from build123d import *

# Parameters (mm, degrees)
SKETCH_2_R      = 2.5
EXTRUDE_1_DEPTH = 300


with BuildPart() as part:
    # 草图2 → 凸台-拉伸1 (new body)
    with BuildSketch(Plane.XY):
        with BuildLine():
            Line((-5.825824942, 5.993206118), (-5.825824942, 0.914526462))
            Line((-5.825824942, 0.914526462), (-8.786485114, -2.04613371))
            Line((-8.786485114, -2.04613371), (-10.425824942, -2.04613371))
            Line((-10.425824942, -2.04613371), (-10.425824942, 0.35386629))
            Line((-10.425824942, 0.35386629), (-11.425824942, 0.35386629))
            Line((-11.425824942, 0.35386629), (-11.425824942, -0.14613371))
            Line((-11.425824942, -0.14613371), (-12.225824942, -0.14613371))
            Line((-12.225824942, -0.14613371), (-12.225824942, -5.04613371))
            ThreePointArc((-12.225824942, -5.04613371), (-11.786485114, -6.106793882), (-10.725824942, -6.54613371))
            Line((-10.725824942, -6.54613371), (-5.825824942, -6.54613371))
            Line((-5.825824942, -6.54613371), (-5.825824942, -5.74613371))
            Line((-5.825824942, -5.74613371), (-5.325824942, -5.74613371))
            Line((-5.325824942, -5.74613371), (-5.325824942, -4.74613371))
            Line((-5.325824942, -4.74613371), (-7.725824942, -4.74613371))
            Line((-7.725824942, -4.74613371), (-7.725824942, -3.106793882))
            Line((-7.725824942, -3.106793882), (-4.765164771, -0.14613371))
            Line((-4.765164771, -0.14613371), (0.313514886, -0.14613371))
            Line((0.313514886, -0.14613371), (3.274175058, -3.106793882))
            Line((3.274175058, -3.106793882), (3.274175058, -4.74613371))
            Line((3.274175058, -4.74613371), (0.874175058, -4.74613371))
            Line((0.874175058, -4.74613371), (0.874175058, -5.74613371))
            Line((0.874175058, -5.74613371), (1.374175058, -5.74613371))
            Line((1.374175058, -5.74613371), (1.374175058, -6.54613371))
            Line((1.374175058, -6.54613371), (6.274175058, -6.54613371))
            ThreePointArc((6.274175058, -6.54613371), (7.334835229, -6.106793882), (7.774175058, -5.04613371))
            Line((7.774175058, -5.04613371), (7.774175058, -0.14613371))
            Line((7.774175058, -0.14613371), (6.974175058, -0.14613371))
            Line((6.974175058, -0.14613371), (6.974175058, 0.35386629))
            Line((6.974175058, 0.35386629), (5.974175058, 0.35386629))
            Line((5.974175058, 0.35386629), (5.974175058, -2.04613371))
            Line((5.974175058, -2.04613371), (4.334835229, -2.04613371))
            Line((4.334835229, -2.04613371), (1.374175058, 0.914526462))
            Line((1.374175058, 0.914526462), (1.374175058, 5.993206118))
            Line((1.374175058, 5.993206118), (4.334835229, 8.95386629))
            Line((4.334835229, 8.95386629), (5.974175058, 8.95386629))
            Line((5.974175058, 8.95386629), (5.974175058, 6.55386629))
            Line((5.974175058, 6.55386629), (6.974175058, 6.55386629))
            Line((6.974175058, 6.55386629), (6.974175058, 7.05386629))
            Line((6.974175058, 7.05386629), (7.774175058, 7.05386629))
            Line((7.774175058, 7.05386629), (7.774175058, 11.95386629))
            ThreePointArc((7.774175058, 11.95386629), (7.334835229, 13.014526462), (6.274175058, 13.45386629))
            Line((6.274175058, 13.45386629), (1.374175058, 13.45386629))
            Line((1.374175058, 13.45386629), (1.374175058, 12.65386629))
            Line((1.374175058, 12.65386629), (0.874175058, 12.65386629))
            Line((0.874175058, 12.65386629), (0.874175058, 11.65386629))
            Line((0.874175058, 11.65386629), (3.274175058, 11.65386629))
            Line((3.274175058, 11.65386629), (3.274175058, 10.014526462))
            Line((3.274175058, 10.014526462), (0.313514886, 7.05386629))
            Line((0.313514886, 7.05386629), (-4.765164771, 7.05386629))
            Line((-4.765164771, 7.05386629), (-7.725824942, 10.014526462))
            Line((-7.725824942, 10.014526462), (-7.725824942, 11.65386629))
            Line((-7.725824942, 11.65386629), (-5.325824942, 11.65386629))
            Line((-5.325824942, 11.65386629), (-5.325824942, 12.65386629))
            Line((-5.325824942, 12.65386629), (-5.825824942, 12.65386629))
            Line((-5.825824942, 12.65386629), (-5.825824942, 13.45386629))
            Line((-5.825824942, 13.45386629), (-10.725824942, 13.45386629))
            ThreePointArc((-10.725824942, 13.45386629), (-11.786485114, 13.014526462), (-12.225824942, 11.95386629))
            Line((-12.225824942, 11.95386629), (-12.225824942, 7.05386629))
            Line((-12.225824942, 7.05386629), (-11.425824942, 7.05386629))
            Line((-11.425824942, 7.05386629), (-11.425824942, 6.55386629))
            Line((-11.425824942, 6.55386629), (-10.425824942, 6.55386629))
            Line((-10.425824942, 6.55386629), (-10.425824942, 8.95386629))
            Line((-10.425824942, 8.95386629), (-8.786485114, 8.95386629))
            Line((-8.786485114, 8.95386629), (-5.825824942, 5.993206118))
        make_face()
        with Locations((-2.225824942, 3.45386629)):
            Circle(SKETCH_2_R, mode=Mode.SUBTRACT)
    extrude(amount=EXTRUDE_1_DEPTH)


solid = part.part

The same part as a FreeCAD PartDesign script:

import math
import FreeCAD as App
import Part
import Sketcher
from FreeCAD import Vector
Q = App.Units.Quantity

doc = App.newDocument("Part")
params = doc.addObject("Spreadsheet::Sheet", "Params")
for row, (alias, value) in enumerate([
    ("sketch1_diameter", "5 mm"),
    ("sketch1_radius", "1.5 mm"),
    ("sketch1_width", "1 mm"),
    ("sketch1_width2", "0.8 mm"),
    ("sketch1_width3", "4.9 mm"),
    ("pad1_length", "300 mm"),
], start=1):
    params.set(f"A{row}", alias)
    params.set(f"B{row}", "=" + value)
    params.setAlias(f"B{row}", alias)

body = doc.addObject("PartDesign::Body", "Body")

# Sketch on XY plane
sketch1 = doc.addObject("Sketcher::SketchObject", "Sketch")
body.addObject(sketch1)
sketch1.AttachmentSupport = (doc.XY_Plane, [""])
sketch1.MapMode = "FlatFace"
sketch1.addGeometry(Part.LineSegment(Vector(-5.8, 6, 0), Vector(-5.8, 0.9, 0)), False)
sketch1.addGeometry(Part.LineSegment(Vector(-5.8, 0.9, 0), Vector(-8.8, -2, 0)), False)
sketch1.addGeometry(Part.LineSegment(Vector(-8.8, -2, 0), Vector(-10.4, -2, 0)), False)
sketch1.addGeometry(Part.LineSegment(Vector(-10.4, -2, 0), Vector(-10.4, 0.4, 0)), False)
sketch1.addGeometry(Part.LineSegment(Vector(-10.4, 0.4, 0), Vector(-11.4, 0.4, 0)), False)
sketch1.addGeometry(Part.LineSegment(Vector(-11.4, 0.4, 0), Vector(-11.4, -0.1, 0)), False)
sketch1.addGeometry(Part.LineSegment(Vector(-11.4, -0.1, 0), Vector(-12.2, -0.1, 0)), False)
sketch1.addGeometry(Part.LineSegment(Vector(-12.2, -0.1, 0), Vector(-12.2, -5, 0)), False)
sketch1.addGeometry(Part.ArcOfCircle(Part.Circle(Vector(-10.7, -5, 0), Vector(0, 0, 1), 1.5), math.radians(180), math.radians(270)), False)
sketch1.addGeometry(Part.LineSegment(Vector(-10.7, -6.5, 0), Vector(-5.8, -6.5, 0)), False)
sketch1.addGeometry(Part.LineSegment(Vector(-5.8, -6.5, 0), Vector(-5.8, -5.7, 0)), False)
sketch1.addGeometry(Part.LineSegment(Vector(-5.8, -5.7, 0), Vector(-5.3, -5.7, 0)), False)
sketch1.addGeometry(Part.LineSegment(Vector(-5.3, -5.7, 0), Vector(-5.3, -4.7, 0)), False)
sketch1.addGeometry(Part.LineSegment(Vector(-5.3, -4.7, 0), Vector(-7.7, -4.7, 0)), False)
sketch1.addGeometry(Part.LineSegment(Vector(-7.7, -4.7, 0), Vector(-7.7, -3.1, 0)), False)
sketch1.addGeometry(Part.LineSegment(Vector(-7.7, -3.1, 0), Vector(-4.8, -0.1, 0)), False)
sketch1.addGeometry(Part.LineSegment(Vector(-4.8, -0.1, 0), Vector(0.3, -0.1, 0)), False)
sketch1.addGeometry(Part.LineSegment(Vector(0.3, -0.1, 0), Vector(3.3, -3.1, 0)), False)
sketch1.addGeometry(Part.LineSegment(Vector(3.3, -3.1, 0), Vector(3.3, -4.7, 0)), False)
sketch1.addGeometry(Part.LineSegment(Vector(3.3, -4.7, 0), Vector(0.9, -4.7, 0)), False)
sketch1.addGeometry(Part.LineSegment(Vector(0.9, -4.7, 0), Vector(0.9, -5.7, 0)), False)
sketch1.addGeometry(Part.LineSegment(Vector(0.9, -5.7, 0), Vector(1.4, -5.7, 0)), False)
sketch1.addGeometry(Part.LineSegment(Vector(1.4, -5.7, 0), Vector(1.4, -6.5, 0)), False)
sketch1.addGeometry(Part.LineSegment(Vector(1.4, -6.5, 0), Vector(6.3, -6.5, 0)), False)
sketch1.addGeometry(Part.ArcOfCircle(Part.Circle(Vector(6.3, -5, 0), Vector(0, 0, 1), 1.5), math.radians(-90), math.radians(0)), False)
sketch1.addGeometry(Part.LineSegment(Vector(7.8, -5, 0), Vector(7.8, -0.1, 0)), False)
sketch1.addGeometry(Part.LineSegment(Vector(7.8, -0.1, 0), Vector(7, -0.1, 0)), False)
sketch1.addGeometry(Part.LineSegment(Vector(7, -0.1, 0), Vector(7, 0.4, 0)), False)
sketch1.addGeometry(Part.LineSegment(Vector(7, 0.4, 0), Vector(6, 0.4, 0)), False)
sketch1.addGeometry(Part.LineSegment(Vector(6, 0.4, 0), Vector(6, -2, 0)), False)
sketch1.addGeometry(Part.LineSegment(Vector(6, -2, 0), Vector(4.3, -2, 0)), False)
sketch1.addGeometry(Part.LineSegment(Vector(4.3, -2, 0), Vector(1.4, 0.9, 0)), False)
sketch1.addGeometry(Part.LineSegment(Vector(1.4, 0.9, 0), Vector(1.4, 6, 0)), False)
sketch1.addGeometry(Part.LineSegment(Vector(1.4, 6, 0), Vector(4.3, 9, 0)), False)
sketch1.addGeometry(Part.LineSegment(Vector(4.3, 9, 0), Vector(6, 9, 0)), False)
sketch1.addGeometry(Part.LineSegment(Vector(6, 9, 0), Vector(6, 6.6, 0)), False)
sketch1.addGeometry(Part.LineSegment(Vector(6, 6.6, 0), Vector(7, 6.6, 0)), False)
sketch1.addGeometry(Part.LineSegment(Vector(7, 6.6, 0), Vector(7, 7.1, 0)), False)
sketch1.addGeometry(Part.LineSegment(Vector(7, 7.1, 0), Vector(7.8, 7.1, 0)), False)
sketch1.addGeometry(Part.LineSegment(Vector(7.8, 7.1, 0), Vector(7.8, 12, 0)), False)
sketch1.addGeometry(Part.ArcOfCircle(Part.Circle(Vector(6.3, 12, 0), Vector(0, 0, 1), 1.5), math.radians(0), math.radians(90)), False)
sketch1.addGeometry(Part.LineSegment(Vector(6.3, 13.5, 0), Vector(1.4, 13.5, 0)), False)
sketch1.addGeometry(Part.LineSegment(Vector(1.4, 13.5, 0), Vector(1.4, 12.7, 0)), False)
sketch1.addGeometry(Part.LineSegment(Vector(1.4, 12.7, 0), Vector(0.9, 12.7, 0)), False)
sketch1.addGeometry(Part.LineSegment(Vector(0.9, 12.7, 0), Vector(0.9, 11.7, 0)), False)
sketch1.addGeometry(Part.LineSegment(Vector(0.9, 11.7, 0), Vector(3.3, 11.7, 0)), False)
sketch1.addGeometry(Part.LineSegment(Vector(3.3, 11.7, 0), Vector(3.3, 10, 0)), False)
sketch1.addGeometry(Part.LineSegment(Vector(3.3, 10, 0), Vector(0.3, 7.1, 0)), False)
sketch1.addGeometry(Part.LineSegment(Vector(0.3, 7.1, 0), Vector(-4.8, 7.1, 0)), False)
sketch1.addGeometry(Part.LineSegment(Vector(-4.8, 7.1, 0), Vector(-7.7, 10, 0)), False)
sketch1.addGeometry(Part.LineSegment(Vector(-7.7, 10, 0), Vector(-7.7, 11.7, 0)), False)
sketch1.addGeometry(Part.LineSegment(Vector(-7.7, 11.7, 0), Vector(-5.3, 11.7, 0)), False)
sketch1.addGeometry(Part.LineSegment(Vector(-5.3, 11.7, 0), Vector(-5.3, 12.7, 0)), False)
sketch1.addGeometry(Part.LineSegment(Vector(-5.3, 12.7, 0), Vector(-5.8, 12.7, 0)), False)
sketch1.addGeometry(Part.LineSegment(Vector(-5.8, 12.7, 0), Vector(-5.8, 13.5, 0)), False)
sketch1.addGeometry(Part.LineSegment(Vector(-5.8, 13.5, 0), Vector(-10.7, 13.5, 0)), False)
sketch1.addGeometry(Part.ArcOfCircle(Part.Circle(Vector(-10.7, 12, 0), Vector(0, 0, 1), 1.5), math.radians(90), math.radians(180)), False)
sketch1.addGeometry(Part.LineSegment(Vector(-12.2, 12, 0), Vector(-12.2, 7.1, 0)), False)
sketch1.addGeometry(Part.LineSegment(Vector(-12.2, 7.1, 0), Vector(-11.4, 7.1, 0)), False)
sketch1.addGeometry(Part.LineSegment(Vector(-11.4, 7.1, 0), Vector(-11.4, 6.6, 0)), False)
sketch1.addGeometry(Part.LineSegment(Vector(-11.4, 6.6, 0), Vector(-10.4, 6.6, 0)), False)
sketch1.addGeometry(Part.LineSegment(Vector(-10.4, 6.6, 0), Vector(-10.4, 9, 0)), False)
sketch1.addGeometry(Part.LineSegment(Vector(-10.4, 9, 0), Vector(-8.8, 9, 0)), False)
sketch1.addGeometry(Part.LineSegment(Vector(-8.8, 9, 0), Vector(-5.8, 6, 0)), False)
sketch1.addGeometry(Part.Circle(Vector(-2.2, 3.5, 0), Vector(0, 0, 1), 2.5), False)
sketch1.addConstraint(Sketcher.Constraint("Coincident", 0, 2, 1, 1))
sketch1.addConstraint(Sketcher.Constraint("Coincident", 1, 2, 2, 1))
sketch1.addConstraint(Sketcher.Constraint("Coincident", 2, 2, 3, 1))
sketch1.addConstraint(Sketcher.Constraint("Coincident", 3, 2, 4, 1))
sketch1.addConstraint(Sketcher.Constraint("Coincident", 4, 2, 5, 1))
sketch1.addConstraint(Sketcher.Constraint("Coincident", 5, 2, 6, 1))
sketch1.addConstraint(Sketcher.Constraint("Coincident", 6, 2, 7, 1))
sketch1.addConstraint(Sketcher.Constraint("Tangent", 7, 2, 8, 1))
sketch1.addConstraint(Sketcher.Constraint("Tangent", 8, 2, 9, 1))
sketch1.addConstraint(Sketcher.Constraint("Coincident", 9, 2, 10, 1))
sketch1.addConstraint(Sketcher.Constraint("Coincident", 10, 2, 11, 1))
sketch1.addConstraint(Sketcher.Constraint("Coincident", 11, 2, 12, 1))
sketch1.addConstraint(Sketcher.Constraint("Coincident", 12, 2, 13, 1))
sketch1.addConstraint(Sketcher.Constraint("Coincident", 13, 2, 14, 1))
sketch1.addConstraint(Sketcher.Constraint("Coincident", 14, 2, 15, 1))
sketch1.addConstraint(Sketcher.Constraint("Coincident", 15, 2, 16, 1))
sketch1.addConstraint(Sketcher.Constraint("Coincident", 16, 2, 17, 1))
sketch1.addConstraint(Sketcher.Constraint("Coincident", 17, 2, 18, 1))
sketch1.addConstraint(Sketcher.Constraint("Coincident", 18, 2, 19, 1))
sketch1.addConstraint(Sketcher.Constraint("Coincident", 19, 2, 20, 1))
sketch1.addConstraint(Sketcher.Constraint("Coincident", 20, 2, 21, 1))
sketch1.addConstraint(Sketcher.Constraint("Coincident", 21, 2, 22, 1))
sketch1.addConstraint(Sketcher.Constraint("Coincident", 22, 2, 23, 1))
sketch1.addConstraint(Sketcher.Constraint("Tangent", 23, 2, 24, 1))
sketch1.addConstraint(Sketcher.Constraint("Tangent", 24, 2, 25, 1))
sketch1.addConstraint(Sketcher.Constraint("Coincident", 25, 2, 26, 1))
sketch1.addConstraint(Sketcher.Constraint("Coincident", 26, 2, 27, 1))
sketch1.addConstraint(Sketcher.Constraint("Coincident", 27, 2, 28, 1))
sketch1.addConstraint(Sketcher.Constraint("Coincident", 28, 2, 29, 1))
sketch1.addConstraint(Sketcher.Constraint("Coincident", 29, 2, 30, 1))
sketch1.addConstraint(Sketcher.Constraint("Coincident", 30, 2, 31, 1))
sketch1.addConstraint(Sketcher.Constraint("Coincident", 31, 2, 32, 1))
sketch1.addConstraint(Sketcher.Constraint("Coincident", 32, 2, 33, 1))
sketch1.addConstraint(Sketcher.Constraint("Coincident", 33, 2, 34, 1))
sketch1.addConstraint(Sketcher.Constraint("Coincident", 34, 2, 35, 1))
sketch1.addConstraint(Sketcher.Constraint("Coincident", 35, 2, 36, 1))
sketch1.addConstraint(Sketcher.Constraint("Coincident", 36, 2, 37, 1))
sketch1.addConstraint(Sketcher.Constraint("Coincident", 37, 2, 38, 1))
sketch1.addConstraint(Sketcher.Constraint("Coincident", 38, 2, 39, 1))
sketch1.addConstraint(Sketcher.Constraint("Tangent", 39, 2, 40, 1))
sketch1.addConstraint(Sketcher.Constraint("Tangent", 40, 2, 41, 1))
sketch1.addConstraint(Sketcher.Constraint("Coincident", 41, 2, 42, 1))
sketch1.addConstraint(Sketcher.Constraint("Coincident", 42, 2, 43, 1))
sketch1.addConstraint(Sketcher.Constraint("Coincident", 43, 2, 44, 1))
sketch1.addConstraint(Sketcher.Constraint("Coincident", 44, 2, 45, 1))
sketch1.addConstraint(Sketcher.Constraint("Coincident", 45, 2, 46, 1))
sketch1.addConstraint(Sketcher.Constraint("Coincident", 46, 2, 47, 1))
sketch1.addConstraint(Sketcher.Constraint("Coincident", 47, 2, 48, 1))
sketch1.addConstraint(Sketcher.Constraint("Coincident", 48, 2, 49, 1))
sketch1.addConstraint(Sketcher.Constraint("Coincident", 49, 2, 50, 1))
sketch1.addConstraint(Sketcher.Constraint("Coincident", 50, 2, 51, 1))
sketch1.addConstraint(Sketcher.Constraint("Coincident", 51, 2, 52, 1))
sketch1.addConstraint(Sketcher.Constraint("Coincident", 52, 2, 53, 1))
sketch1.addConstraint(Sketcher.Constraint("Coincident", 53, 2, 54, 1))
sketch1.addConstraint(Sketcher.Constraint("Coincident", 54, 2, 55, 1))
sketch1.addConstraint(Sketcher.Constraint("Tangent", 55, 2, 56, 1))
sketch1.addConstraint(Sketcher.Constraint("Tangent", 56, 2, 57, 1))
sketch1.addConstraint(Sketcher.Constraint("Coincident", 57, 2, 58, 1))
sketch1.addConstraint(Sketcher.Constraint("Coincident", 58, 2, 59, 1))
sketch1.addConstraint(Sketcher.Constraint("Coincident", 59, 2, 60, 1))
sketch1.addConstraint(Sketcher.Constraint("Coincident", 60, 2, 61, 1))
sketch1.addConstraint(Sketcher.Constraint("Coincident", 61, 2, 62, 1))
sketch1.addConstraint(Sketcher.Constraint("Coincident", 62, 2, 63, 1))
sketch1.addConstraint(Sketcher.Constraint("Coincident", 63, 2, 0, 1))
sketch1.addConstraint(Sketcher.Constraint("Vertical", 0))
sketch1.addConstraint(Sketcher.Constraint("Horizontal", 2))
sketch1.addConstraint(Sketcher.Constraint("Vertical", 3))
sketch1.addConstraint(Sketcher.Constraint("Horizontal", 4))
sketch1.addConstraint(Sketcher.Constraint("Vertical", 5))
sketch1.addConstraint(Sketcher.Constraint("Horizontal", 6))
sketch1.addConstraint(Sketcher.Constraint("Vertical", 7))
sketch1.addConstraint(Sketcher.Constraint("Horizontal", 9))
sketch1.addConstraint(Sketcher.Constraint("Vertical", 10))
sketch1.addConstraint(Sketcher.Constraint("Horizontal", 11))
sketch1.addConstraint(Sketcher.Constraint("Vertical", 12))
sketch1.addConstraint(Sketcher.Constraint("Horizontal", 13))
sketch1.addConstraint(Sketcher.Constraint("Vertical", 14))
sketch1.addConstraint(Sketcher.Constraint("Horizontal", 16))
sketch1.addConstraint(Sketcher.Constraint("Vertical", 18))
sketch1.addConstraint(Sketcher.Constraint("Horizontal", 19))
sketch1.addConstraint(Sketcher.Constraint("Vertical", 20))
sketch1.addConstraint(Sketcher.Constraint("Horizontal", 21))
sketch1.addConstraint(Sketcher.Constraint("Vertical", 22))
sketch1.addConstraint(Sketcher.Constraint("Horizontal", 23))
sketch1.addConstraint(Sketcher.Constraint("Vertical", 25))
sketch1.addConstraint(Sketcher.Constraint("Horizontal", 26))
sketch1.addConstraint(Sketcher.Constraint("Vertical", 27))
sketch1.addConstraint(Sketcher.Constraint("Horizontal", 28))
sketch1.addConstraint(Sketcher.Constraint("Vertical", 29))
sketch1.addConstraint(Sketcher.Constraint("Horizontal", 30))
sketch1.addConstraint(Sketcher.Constraint("Vertical", 32))
sketch1.addConstraint(Sketcher.Constraint("Horizontal", 34))
sketch1.addConstraint(Sketcher.Constraint("Vertical", 35))
sketch1.addConstraint(Sketcher.Constraint("Horizontal", 36))
sketch1.addConstraint(Sketcher.Constraint("Vertical", 37))
sketch1.addConstraint(Sketcher.Constraint("Horizontal", 38))
sketch1.addConstraint(Sketcher.Constraint("Vertical", 39))
sketch1.addConstraint(Sketcher.Constraint("Horizontal", 41))
sketch1.addConstraint(Sketcher.Constraint("Vertical", 42))
sketch1.addConstraint(Sketcher.Constraint("Horizontal", 43))
sketch1.addConstraint(Sketcher.Constraint("Vertical", 44))
sketch1.addConstraint(Sketcher.Constraint("Horizontal", 45))
sketch1.addConstraint(Sketcher.Constraint("Vertical", 46))
sketch1.addConstraint(Sketcher.Constraint("Horizontal", 48))
sketch1.addConstraint(Sketcher.Constraint("Vertical", 50))
sketch1.addConstraint(Sketcher.Constraint("Horizontal", 51))
sketch1.addConstraint(Sketcher.Constraint("Vertical", 52))
sketch1.addConstraint(Sketcher.Constraint("Horizontal", 53))
sketch1.addConstraint(Sketcher.Constraint("Vertical", 54))
sketch1.addConstraint(Sketcher.Constraint("Horizontal", 55))
sketch1.addConstraint(Sketcher.Constraint("Vertical", 57))
sketch1.addConstraint(Sketcher.Constraint("Horizontal", 58))
sketch1.addConstraint(Sketcher.Constraint("Vertical", 59))
sketch1.addConstraint(Sketcher.Constraint("Horizontal", 60))
sketch1.addConstraint(Sketcher.Constraint("Vertical", 61))
sketch1.addConstraint(Sketcher.Constraint("Horizontal", 62))
sketch1.addConstraint(Sketcher.Constraint("Equal", 8, 24))
sketch1.addConstraint(Sketcher.Constraint("Equal", 24, 40))
sketch1.addConstraint(Sketcher.Constraint("Equal", 40, 56))
sketch1.addConstraint(Sketcher.Constraint("Parallel", 1, 15))
sketch1.addConstraint(Sketcher.Constraint("Perpendicular", 15, 17))
sketch1.addConstraint(Sketcher.Constraint("Parallel", 17, 31))
sketch1.addConstraint(Sketcher.Constraint("Perpendicular", 31, 33))
sketch1.addConstraint(Sketcher.Constraint("Parallel", 33, 47))
sketch1.addConstraint(Sketcher.Constraint("Perpendicular", 47, 49))
sketch1.addConstraint(Sketcher.Constraint("Parallel", 49, 63))
sketch1.addConstraint(Sketcher.Constraint("Horizontal", 8, 3, 24, 3))
sketch1.addConstraint(Sketcher.Constraint("Horizontal", 40, 3, 56, 3))
sketch1.addConstraint(Sketcher.Constraint("Horizontal", 6, 2, 15, 2))
sketch1.addConstraint(Sketcher.Constraint("Horizontal", 14, 2, 17, 2))
sketch1.addConstraint(Sketcher.Constraint("Horizontal", 13, 2, 18, 2))
sketch1.addConstraint(Sketcher.Constraint("Horizontal", 11, 2, 20, 2))
sketch1.addConstraint(Sketcher.Constraint("Horizontal", 16, 2, 25, 2))
sketch1.addConstraint(Sketcher.Constraint("Horizontal", 4, 2, 27, 2))
sketch1.addConstraint(Sketcher.Constraint("Horizontal", 2, 2, 29, 2))
sketch1.addConstraint(Sketcher.Constraint("Horizontal", 0, 2, 31, 2))
sketch1.addConstraint(Sketcher.Constraint("Horizontal", 38, 2, 47, 2))
sketch1.addConstraint(Sketcher.Constraint("Horizontal", 46, 2, 49, 2))
sketch1.addConstraint(Sketcher.Constraint("Horizontal", 45, 2, 50, 2))
sketch1.addConstraint(Sketcher.Constraint("Horizontal", 43, 2, 52, 2))
sketch1.addConstraint(Sketcher.Constraint("Horizontal", 48, 2, 57, 2))
sketch1.addConstraint(Sketcher.Constraint("Horizontal", 36, 2, 59, 2))
sketch1.addConstraint(Sketcher.Constraint("Horizontal", 34, 2, 61, 2))
sketch1.addConstraint(Sketcher.Constraint("Horizontal", 32, 2, 63, 2))
sketch1.addConstraint(Sketcher.Constraint("Vertical", 24, 3, 40, 3))
sketch1.addConstraint(Sketcher.Constraint("Vertical", 8, 3, 56, 3))
sketch1.addConstraint(Sketcher.Constraint("Vertical", 0, 2, 9, 2))
sketch1.addConstraint(Sketcher.Constraint("Vertical", 22, 2, 31, 2))
sketch1.addConstraint(Sketcher.Constraint("Vertical", 30, 2, 33, 2))
sketch1.addConstraint(Sketcher.Constraint("Vertical", 29, 2, 34, 2))
sketch1.addConstraint(Sketcher.Constraint("Vertical", 27, 2, 36, 2))
sketch1.addConstraint(Sketcher.Constraint("Vertical", 32, 2, 41, 2))
sketch1.addConstraint(Sketcher.Constraint("Vertical", 20, 2, 43, 2))
sketch1.addConstraint(Sketcher.Constraint("Vertical", 18, 2, 45, 2))
sketch1.addConstraint(Sketcher.Constraint("Vertical", 16, 2, 47, 2))
sketch1.addConstraint(Sketcher.Constraint("Vertical", 15, 2, 48, 2))
sketch1.addConstraint(Sketcher.Constraint("Vertical", 14, 2, 49, 2))
sketch1.addConstraint(Sketcher.Constraint("Vertical", 12, 2, 51, 2))
sketch1.addConstraint(Sketcher.Constraint("Vertical", 10, 2, 53, 2))
sketch1.addConstraint(Sketcher.Constraint("Vertical", 5, 2, 58, 2))
sketch1.addConstraint(Sketcher.Constraint("Vertical", 3, 2, 60, 2))
sketch1.addConstraint(Sketcher.Constraint("Equal", 13, 19))
sketch1.addConstraint(Sketcher.Constraint("Equal", 11, 21))
sketch1.addConstraint(Sketcher.Constraint("Equal", 9, 23))
sketch1.addConstraint(Sketcher.Constraint("Equal", 6, 26))
sketch1.addConstraint(Sketcher.Constraint("Equal", 4, 28))
sketch1.addConstraint(Sketcher.Constraint("Equal", 48, 0))
sketch1.addConstraint(Sketcher.Constraint("Equal", 51, 3))
sketch1.addConstraint(Sketcher.Constraint("Equal", 53, 5))
sketch1.addConstraint(Sketcher.Constraint("Equal", 55, 7))
sketch1.addConstraint(Sketcher.Constraint("Equal", 58, 10))
sketch1.addConstraint(Sketcher.Constraint("Equal", 60, 12))
sketch1.addConstraint(Sketcher.Constraint("Equal", 62, 14))
sketch1.addConstraint(Sketcher.Constraint("Equal", 29, 35))
sketch1.addConstraint(Sketcher.Constraint("Equal", 27, 37))
sketch1.addConstraint(Sketcher.Constraint("Equal", 25, 39))
sketch1.addConstraint(Sketcher.Constraint("Equal", 22, 42))
sketch1.addConstraint(Sketcher.Constraint("Equal", 20, 44))
sketch1.addConstraint(Sketcher.Constraint("Diameter", 64, Q("5 mm")))
sketch1.addConstraint(Sketcher.Constraint("Radius", 8, Q("1.5 mm")))
sketch1.addConstraint(Sketcher.Constraint("DistanceX", 4, 2, 4, 1, Q("1 mm")))
sketch1.addConstraint(Sketcher.Constraint("DistanceX", 6, 2, 6, 1, Q("0.8 mm")))
sketch1.addConstraint(Sketcher.Constraint("DistanceX", 9, 1, 9, 2, Q("4.9 mm")))
sketch1.addConstraint(Sketcher.Constraint("DistanceX", 11, 1, 11, 2, Q("0.5 mm")))
sketch1.addConstraint(Sketcher.Constraint("DistanceX", 13, 2, 13, 1, Q("2.4 mm")))
sketch1.addConstraint(Sketcher.Constraint("DistanceX", 2, 2, 2, 1, Q("1.63934 mm")))
sketch1.addConstraint(Sketcher.Constraint("DistanceX", 16, 1, 16, 2, Q("5.07868 mm")))
sketch1.addConstraint(Sketcher.Constraint("DistanceX", 8, 3, -1, 1, Q("10.725825 mm")))
sketch1.addConstraint(Sketcher.Constraint("DistanceY", 8, 3, -1, 1, Q("5.046134 mm")))
sketch1.addConstraint(Sketcher.Constraint("DistanceX", 64, 3, -1, 1, Q("2.225825 mm")))
sketch1.addConstraint(Sketcher.Constraint("DistanceY", -1, 1, 64, 3, Q("3.453866 mm")))
sketch1.setExpression("Constraints[178]", "Params.sketch1_diameter")
sketch1.setExpression("Constraints[179]", "Params.sketch1_radius")
sketch1.setExpression("Constraints[180]", "Params.sketch1_width")
sketch1.setExpression("Constraints[181]", "Params.sketch1_width2")
sketch1.setExpression("Constraints[182]", "Params.sketch1_width3")
pad1 = doc.addObject("PartDesign::Pad", "Pad")
body.addObject(pad1)
pad1.Profile = sketch1
pad1.setExpression("Length", "Params.pad1_length")

doc.recompute()
